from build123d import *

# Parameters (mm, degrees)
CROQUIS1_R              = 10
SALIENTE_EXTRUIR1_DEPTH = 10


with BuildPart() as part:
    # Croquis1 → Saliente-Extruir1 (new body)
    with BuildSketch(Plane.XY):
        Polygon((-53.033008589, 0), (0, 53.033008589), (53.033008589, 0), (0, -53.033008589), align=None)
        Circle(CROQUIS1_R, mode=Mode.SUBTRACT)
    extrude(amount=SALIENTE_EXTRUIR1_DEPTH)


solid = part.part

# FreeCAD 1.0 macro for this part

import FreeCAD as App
import Part
import Sketcher
from FreeCAD import Vector

doc = App.newDocument("Part")
params = doc.addObject("Spreadsheet::Sheet", "Params")
for row, (alias, value) in enumerate([
    ("sketch1_diameter", "20 mm"),
    ("sketch1_length", "75 mm"),
    ("pad1_length", "10 mm"),
], start=1):
    params.set(f"A{row}", alias)
    params.set(f"B{row}", "=" + value)
    params.setAlias(f"B{row}", alias)

body = doc.addObject("PartDesign::Body", "Body")

# Sketch on XY plane
sketch1 = body.newObject("Sketcher::SketchObject", "Sketch")
sketch1.AttachmentSupport = (doc.getObject("XY_Plane"), [""])
sketch1.MapMode = "FlatFace"
sketch1.addGeometry([
    Part.LineSegment(Vector(0, 53, 0), Vector(-53, 0, 0)),  # 0
    Part.LineSegment(Vector(-53, 0, 0), Vector(0, -53, 0)),  # 1
    Part.LineSegment(Vector(0, -53, 0), Vector(53, 0, 0)),  # 2
    Part.LineSegment(Vector(53, 0, 0), Vector(0, 53, 0)),  # 3
    Part.Circle(Vector(0, 0, 0), Vector(0, 0, 1), 10),  # 4
], False)
sketch1.addConstraint([
    Sketcher.Constraint("Coincident", 0, 2, 1, 1),
    Sketcher.Constraint("Coincident", 1, 2, 2, 1),
    Sketcher.Constraint("Coincident", 2, 2, 3, 1),
    Sketcher.Constraint("Coincident", 3, 2, 0, 1),
    Sketcher.Constraint("Coincident", 4, 3, -1, 1),
    Sketcher.Constraint("Symmetric", 0, 2, 2, 2, -1, 1),
    Sketcher.Constraint("Symmetric", 1, 2, 3, 2, -1, 1),
    Sketcher.Constraint("PointOnObject", 0, 2, -1),
    Sketcher.Constraint("PointOnObject", 1, 2, -2),
    Sketcher.Constraint("Perpendicular", 0, 1),
    Sketcher.Constraint("Diameter", 4, 20.0),
    Sketcher.Constraint("Distance", 0, 75.0),
])
sketch1.setExpression("Constraints[10]", "Params.sketch1_diameter")
sketch1.setExpression("Constraints[11]", "Params.sketch1_length")
pad1 = body.newObject("PartDesign::Pad", "Pad")
pad1.Profile = sketch1
pad1.setExpression("Length", "Params.pad1_length")

doc.recompute()
